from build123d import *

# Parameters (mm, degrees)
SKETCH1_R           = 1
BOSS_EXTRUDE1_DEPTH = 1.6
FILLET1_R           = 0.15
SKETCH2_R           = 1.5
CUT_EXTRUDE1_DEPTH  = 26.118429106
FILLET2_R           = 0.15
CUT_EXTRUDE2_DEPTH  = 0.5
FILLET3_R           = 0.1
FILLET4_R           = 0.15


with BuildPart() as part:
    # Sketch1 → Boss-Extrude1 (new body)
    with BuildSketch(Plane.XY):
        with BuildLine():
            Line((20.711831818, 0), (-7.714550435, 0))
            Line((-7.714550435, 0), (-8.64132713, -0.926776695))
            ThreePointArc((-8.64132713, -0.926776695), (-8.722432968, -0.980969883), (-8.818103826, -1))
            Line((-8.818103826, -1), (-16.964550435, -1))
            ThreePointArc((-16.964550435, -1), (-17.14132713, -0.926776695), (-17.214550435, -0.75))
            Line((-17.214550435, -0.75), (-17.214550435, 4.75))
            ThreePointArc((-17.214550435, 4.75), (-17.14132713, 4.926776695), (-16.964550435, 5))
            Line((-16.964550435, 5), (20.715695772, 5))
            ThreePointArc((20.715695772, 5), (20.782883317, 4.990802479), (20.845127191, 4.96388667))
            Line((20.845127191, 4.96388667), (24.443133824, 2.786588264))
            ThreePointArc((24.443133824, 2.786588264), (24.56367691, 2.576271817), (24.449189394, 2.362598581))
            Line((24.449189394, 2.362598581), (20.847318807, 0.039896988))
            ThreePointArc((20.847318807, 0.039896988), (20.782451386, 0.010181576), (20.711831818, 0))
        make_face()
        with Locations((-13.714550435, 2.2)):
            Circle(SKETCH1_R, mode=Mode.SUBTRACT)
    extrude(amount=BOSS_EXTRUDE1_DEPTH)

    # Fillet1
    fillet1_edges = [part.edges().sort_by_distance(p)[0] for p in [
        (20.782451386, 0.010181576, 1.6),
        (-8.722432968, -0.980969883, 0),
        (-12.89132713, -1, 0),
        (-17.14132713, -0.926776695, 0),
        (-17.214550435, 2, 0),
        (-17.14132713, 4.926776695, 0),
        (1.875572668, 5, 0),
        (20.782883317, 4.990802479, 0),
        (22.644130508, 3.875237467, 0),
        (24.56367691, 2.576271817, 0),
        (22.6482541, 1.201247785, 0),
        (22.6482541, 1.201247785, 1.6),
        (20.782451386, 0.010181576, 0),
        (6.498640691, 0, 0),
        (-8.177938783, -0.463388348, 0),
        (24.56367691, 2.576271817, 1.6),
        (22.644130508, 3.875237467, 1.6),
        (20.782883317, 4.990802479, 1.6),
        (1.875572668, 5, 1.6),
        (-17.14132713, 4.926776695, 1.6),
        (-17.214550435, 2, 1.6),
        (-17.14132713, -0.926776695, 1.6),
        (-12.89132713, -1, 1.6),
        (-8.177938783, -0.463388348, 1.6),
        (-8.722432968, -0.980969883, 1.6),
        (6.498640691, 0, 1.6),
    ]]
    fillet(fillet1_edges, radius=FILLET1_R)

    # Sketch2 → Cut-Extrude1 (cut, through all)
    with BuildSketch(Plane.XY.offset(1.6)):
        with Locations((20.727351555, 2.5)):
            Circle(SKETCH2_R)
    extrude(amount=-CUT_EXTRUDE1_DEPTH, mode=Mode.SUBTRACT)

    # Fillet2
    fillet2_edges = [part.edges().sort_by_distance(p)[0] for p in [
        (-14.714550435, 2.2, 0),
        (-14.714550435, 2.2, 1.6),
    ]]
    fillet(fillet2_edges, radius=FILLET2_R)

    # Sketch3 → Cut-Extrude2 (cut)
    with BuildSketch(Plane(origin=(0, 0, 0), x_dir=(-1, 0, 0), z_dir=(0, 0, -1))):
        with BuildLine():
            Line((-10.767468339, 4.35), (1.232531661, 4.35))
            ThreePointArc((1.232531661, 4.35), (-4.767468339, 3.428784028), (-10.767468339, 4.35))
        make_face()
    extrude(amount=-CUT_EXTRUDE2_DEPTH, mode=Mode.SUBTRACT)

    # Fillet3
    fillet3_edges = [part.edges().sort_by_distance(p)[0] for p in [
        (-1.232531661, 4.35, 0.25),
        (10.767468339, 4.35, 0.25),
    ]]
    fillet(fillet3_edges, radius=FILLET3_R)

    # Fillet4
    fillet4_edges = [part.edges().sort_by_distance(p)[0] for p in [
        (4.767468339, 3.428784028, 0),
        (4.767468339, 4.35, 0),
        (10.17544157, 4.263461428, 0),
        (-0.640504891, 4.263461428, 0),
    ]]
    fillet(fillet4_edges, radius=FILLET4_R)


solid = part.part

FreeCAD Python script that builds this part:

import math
import FreeCAD as App
import Part
import Sketcher
Q = App.Units.Quantity


def edges_at(feature, points):
    """Names of the edges that pass closest to the given points."""
    edges = feature.Shape.Edges
    near = lambda p: min(range(len(edges)), key=lambda i: edges[i].distToShape(Part.Vertex(*p))[0])
    return sorted({f"Edge{near(p) + 1}" for p in points})

doc = App.newDocument("Part")
body = doc.addObject("PartDesign::Body", "Body")

sketch1 = body.newObject("Sketcher::SketchObject", "Sketch")
sketch1.AttachmentSupport = (doc.getObject("XY_Plane"), [""])
sketch1.MapMode = "FlatFace"
sketch1.addGeometry([
    Part.LineSegment(App.Vector(-7.71, 0, 0), App.Vector(20.71, 0, 0)),
    Part.ArcOfCircle(Part.Circle(App.Vector(20.71, 0.25, 0), App.Vector(0, 0, 1), 0.25), math.radians(-90), math.radians(-57)),
    Part.LineSegment(App.Vector(20.85, 0.04, 0), App.Vector(24.45, 2.36, 0)),
    Part.ArcOfCircle(Part.Circle(App.Vector(24.31, 2.57, 0), App.Vector(0, 0, 1), 0.25), math.radians(-57), math.radians(59)),
    Part.LineSegment(App.Vector(24.44, 2.79, 0), App.Vector(20.85, 4.96, 0)),
    Part.ArcOfCircle(Part.Circle(App.Vector(20.72, 4.75, 0), App.Vector(0, 0, 1), 0.25), math.radians(59), math.radians(90)),
    Part.LineSegment(App.Vector(20.72, 5, 0), App.Vector(-16.96, 5, 0)),
    Part.ArcOfCircle(Part.Circle(App.Vector(-16.96, 4.75, 0), App.Vector(0, 0, 1), 0.25), math.radians(90), math.radians(180)),
    Part.LineSegment(App.Vector(-17.21, 4.75, 0), App.Vector(-17.21, -0.75, 0)),
    Part.ArcOfCircle(Part.Circle(App.Vector(-16.96, -0.75, 0), App.Vector(0, 0, 1), 0.25), math.radians(-180), math.radians(-90)),
    Part.LineSegment(App.Vector(-16.96, -1, 0), App.Vector(-8.82, -1, 0)),
    Part.ArcOfCircle(Part.Circle(App.Vector(-8.82, -0.75, 0), App.Vector(0, 0, 1), 0.25), math.radians(-90), math.radians(-45)),
    Part.LineSegment(App.Vector(-8.64, -0.93, 0), App.Vector(-7.71, 0, 0)),
    Part.Circle(App.Vector(-13.71, 2.2, 0), App.Vector(0, 0, 1), 1),
], False)
sketch1.addConstraint([
    Sketcher.Constraint("Tangent", 0, 2, 1, 1),
    Sketcher.Constraint("Tangent", 1, 2, 2, 1),
    Sketcher.Constraint("Tangent", 2, 2, 3, 1),
    Sketcher.Constraint("Tangent", 3, 2, 4, 1),
    Sketcher.Constraint("Tangent", 4, 2, 5, 1),
    Sketcher.Constraint("Tangent", 5, 2, 6, 1),
    Sketcher.Constraint("Tangent", 6, 2, 7, 1),
    Sketcher.Constraint("Tangent", 7, 2, 8, 1),
    Sketcher.Constraint("Tangent", 8, 2, 9, 1),
    Sketcher.Constraint("Tangent", 9, 2, 10, 1),
    Sketcher.Constraint("Tangent", 10, 2, 11, 1),
    Sketcher.Constraint("Tangent", 11, 2, 12, 1),
    Sketcher.Constraint("Coincident", 12, 2, 0, 1),
    Sketcher.Constraint("Horizontal", 0),
    Sketcher.Constraint("Horizontal", 6),
    Sketcher.Constraint("Vertical", 8),
    Sketcher.Constraint("Horizontal", 10),
    Sketcher.Constraint("Equal", 1, 3),
    Sketcher.Constraint("Equal", 3, 5),
    Sketcher.Constraint("Equal", 5, 7),
    Sketcher.Constraint("Equal", 7, 9),
    Sketcher.Constraint("Equal", 9, 11),
    Sketcher.Constraint("PointOnObject", 0, 2, -1),
    Sketcher.Constraint("Diameter", 13, Q("2 mm")),
    Sketcher.Constraint("Angle", 12, Q("45 deg")),
    Sketcher.Constraint("Radius", 1, Q("0.25 mm")),
    Sketcher.Constraint("DistanceY", 8, 2, 8, 1, Q("5.5 mm")),
    Sketcher.Constraint("DistanceY", -1, 1, 5, 2, Q("5 mm")),
    Sketcher.Constraint("DistanceX", 13, 3, 12, 2, Q("6 mm")),
    Sketcher.Constraint("DistanceY", -1, 1, 13, 3, Q("2.2 mm")),
    Sketcher.Constraint("DistanceX", 7, 2, 13, 3, Q("3.5 mm")),
    Sketcher.Constraint("DistanceY", -1, 1, 3, 3, Q("2.572702 mm")),
    Sketcher.Constraint("DistanceY", -1, 1, 2, 2, Q("2.362599 mm")),
    Sketcher.Constraint("DistanceX", 11, 3, 5, 3, Q("29.5338 mm")),
    Sketcher.Constraint("DistanceX", 0, 1, 0, 2, Q("28.426382 mm")),
    Sketcher.Constraint("DistanceX", -1, 1, 1, 3, Q("20.711832 mm")),
])
pad1 = body.newObject("PartDesign::Pad", "Pad")
pad1.Profile = sketch1
pad1.Length = 1.6
doc.recompute()

fillet = body.newObject("PartDesign::Fillet", "Fillet")
fillet.Base = (pad1, edges_at(pad1, [
    (20.782, 0.01, 1.6),
    (-8.722, -0.981, 0),
    (-12.891, -1, 0),
    (-17.141, -0.927, 0),
    (-17.215, 2, 0),
    (-17.141, 4.927, 0),
    (1.876, 5, 0),
    (20.783, 4.991, 0),
    (22.644, 3.875, 0),
    (24.564, 2.576, 0),
    (22.648, 1.201, 0),
    (22.648, 1.201, 1.6),
    (20.782, 0.01, 0),
    (6.499, 0, 0),
    (-8.178, -0.463, 0),
    (24.564, 2.576, 1.6),
    (22.644, 3.875, 1.6),
    (20.783, 4.991, 1.6),
    (1.876, 5, 1.6),
    (-17.141, 4.927, 1.6),
    (-17.215, 2, 1.6),
    (-17.141, -0.927, 1.6),
    (-12.891, -1, 1.6),
    (-8.178, -0.463, 1.6),
    (-8.722, -0.981, 1.6),
    (6.499, 0, 1.6),
]))
fillet.Radius = 0.15

sketch2 = body.newObject("Sketcher::SketchObject", "Sketch001")
sketch2.AttachmentSupport = (doc.getObject("XY_Plane"), [""])
sketch2.MapMode = "FlatFace"
sketch2.AttachmentOffset = App.Placement(App.Vector(0, 0, 1.6), App.Rotation())
sketch2.addGeometry(Part.Circle(App.Vector(20.7, 2.5, 0), App.Vector(0, 0, 1), 1.5), False)
sketch2.addConstraint([
    Sketcher.Constraint("Diameter", 0, Q("3 mm")),
    Sketcher.Constraint("DistanceY", -1, 1, 0, 3, Q("2.5 mm")),
    Sketcher.Constraint("DistanceX", -1, 1, 0, 3, Q("20.727352 mm")),
])
pocket1 = body.newObject("PartDesign::Pocket", "Pocket")
pocket1.Profile = sketch2
pocket1.Type = "ThroughAll"
doc.recompute()

fillet2 = body.newObject("PartDesign::Fillet", "Fillet001")
fillet2.Base = (pocket1, edges_at(pocket1, [(-14.715, 2.2, 0), (-14.715, 2.2, 1.6)]))
fillet2.Radius = 0.15

sketch3 = body.newObject("Sketcher::SketchObject", "Sketch002")
sketch3.AttachmentSupport = (doc.getObject("XY_Plane"), [""])
sketch3.MapMode = "FlatFace"
sketch3.addGeometry([
    Part.LineSegment(App.Vector(-1, 4, 0), App.Vector(11, 4, 0)),
    Part.ArcOfCircle(Part.Circle(App.Vector(5, 23, 0), App.Vector(0, 0, 1), 20), math.radians(-107), math.radians(-73)),
], False)
sketch3.addConstraint([
    Sketcher.Constraint("Coincident", 0, 1, 1, 1),
    Sketcher.Constraint("Coincident", 1, 2, 0, 2),
    Sketcher.Constraint("Horizontal", 0),
    Sketcher.Constraint("Radius", 1, Q("20 mm")),
    Sketcher.Constraint("DistanceX", 0, 1, 0, 2, Q("12 mm")),
    Sketcher.Constraint("DistanceY", -1, 1, 0, 1, Q("4.35 mm")),
    Sketcher.Constraint("DistanceX", -1, 1, 1, 3, Q("4.767468 mm")),
])
pocket2 = body.newObject("PartDesign::Pocket", "Pocket001")
pocket2.Profile = sketch3
pocket2.Length = 0.5
pocket2.Reversed = True
doc.recompute()

fillet3 = body.newObject("PartDesign::Fillet", "Fillet002")
fillet3.Base = (pocket2, edges_at(pocket2, [(-1.233, 4.35, 0.25), (10.767, 4.35, 0.25)]))
fillet3.Radius = 0.1
doc.recompute()

fillet4 = body.newObject("PartDesign::Fillet", "Fillet003")
fillet4.Base = (fillet3, edges_at(fillet3, [
    (4.767, 3.429, 0),
    (4.767, 4.35, 0),
    (10.175, 4.263, 0),
    (-0.641, 4.263, 0),
]))
fillet4.Radius = 0.15

doc.recompute()
